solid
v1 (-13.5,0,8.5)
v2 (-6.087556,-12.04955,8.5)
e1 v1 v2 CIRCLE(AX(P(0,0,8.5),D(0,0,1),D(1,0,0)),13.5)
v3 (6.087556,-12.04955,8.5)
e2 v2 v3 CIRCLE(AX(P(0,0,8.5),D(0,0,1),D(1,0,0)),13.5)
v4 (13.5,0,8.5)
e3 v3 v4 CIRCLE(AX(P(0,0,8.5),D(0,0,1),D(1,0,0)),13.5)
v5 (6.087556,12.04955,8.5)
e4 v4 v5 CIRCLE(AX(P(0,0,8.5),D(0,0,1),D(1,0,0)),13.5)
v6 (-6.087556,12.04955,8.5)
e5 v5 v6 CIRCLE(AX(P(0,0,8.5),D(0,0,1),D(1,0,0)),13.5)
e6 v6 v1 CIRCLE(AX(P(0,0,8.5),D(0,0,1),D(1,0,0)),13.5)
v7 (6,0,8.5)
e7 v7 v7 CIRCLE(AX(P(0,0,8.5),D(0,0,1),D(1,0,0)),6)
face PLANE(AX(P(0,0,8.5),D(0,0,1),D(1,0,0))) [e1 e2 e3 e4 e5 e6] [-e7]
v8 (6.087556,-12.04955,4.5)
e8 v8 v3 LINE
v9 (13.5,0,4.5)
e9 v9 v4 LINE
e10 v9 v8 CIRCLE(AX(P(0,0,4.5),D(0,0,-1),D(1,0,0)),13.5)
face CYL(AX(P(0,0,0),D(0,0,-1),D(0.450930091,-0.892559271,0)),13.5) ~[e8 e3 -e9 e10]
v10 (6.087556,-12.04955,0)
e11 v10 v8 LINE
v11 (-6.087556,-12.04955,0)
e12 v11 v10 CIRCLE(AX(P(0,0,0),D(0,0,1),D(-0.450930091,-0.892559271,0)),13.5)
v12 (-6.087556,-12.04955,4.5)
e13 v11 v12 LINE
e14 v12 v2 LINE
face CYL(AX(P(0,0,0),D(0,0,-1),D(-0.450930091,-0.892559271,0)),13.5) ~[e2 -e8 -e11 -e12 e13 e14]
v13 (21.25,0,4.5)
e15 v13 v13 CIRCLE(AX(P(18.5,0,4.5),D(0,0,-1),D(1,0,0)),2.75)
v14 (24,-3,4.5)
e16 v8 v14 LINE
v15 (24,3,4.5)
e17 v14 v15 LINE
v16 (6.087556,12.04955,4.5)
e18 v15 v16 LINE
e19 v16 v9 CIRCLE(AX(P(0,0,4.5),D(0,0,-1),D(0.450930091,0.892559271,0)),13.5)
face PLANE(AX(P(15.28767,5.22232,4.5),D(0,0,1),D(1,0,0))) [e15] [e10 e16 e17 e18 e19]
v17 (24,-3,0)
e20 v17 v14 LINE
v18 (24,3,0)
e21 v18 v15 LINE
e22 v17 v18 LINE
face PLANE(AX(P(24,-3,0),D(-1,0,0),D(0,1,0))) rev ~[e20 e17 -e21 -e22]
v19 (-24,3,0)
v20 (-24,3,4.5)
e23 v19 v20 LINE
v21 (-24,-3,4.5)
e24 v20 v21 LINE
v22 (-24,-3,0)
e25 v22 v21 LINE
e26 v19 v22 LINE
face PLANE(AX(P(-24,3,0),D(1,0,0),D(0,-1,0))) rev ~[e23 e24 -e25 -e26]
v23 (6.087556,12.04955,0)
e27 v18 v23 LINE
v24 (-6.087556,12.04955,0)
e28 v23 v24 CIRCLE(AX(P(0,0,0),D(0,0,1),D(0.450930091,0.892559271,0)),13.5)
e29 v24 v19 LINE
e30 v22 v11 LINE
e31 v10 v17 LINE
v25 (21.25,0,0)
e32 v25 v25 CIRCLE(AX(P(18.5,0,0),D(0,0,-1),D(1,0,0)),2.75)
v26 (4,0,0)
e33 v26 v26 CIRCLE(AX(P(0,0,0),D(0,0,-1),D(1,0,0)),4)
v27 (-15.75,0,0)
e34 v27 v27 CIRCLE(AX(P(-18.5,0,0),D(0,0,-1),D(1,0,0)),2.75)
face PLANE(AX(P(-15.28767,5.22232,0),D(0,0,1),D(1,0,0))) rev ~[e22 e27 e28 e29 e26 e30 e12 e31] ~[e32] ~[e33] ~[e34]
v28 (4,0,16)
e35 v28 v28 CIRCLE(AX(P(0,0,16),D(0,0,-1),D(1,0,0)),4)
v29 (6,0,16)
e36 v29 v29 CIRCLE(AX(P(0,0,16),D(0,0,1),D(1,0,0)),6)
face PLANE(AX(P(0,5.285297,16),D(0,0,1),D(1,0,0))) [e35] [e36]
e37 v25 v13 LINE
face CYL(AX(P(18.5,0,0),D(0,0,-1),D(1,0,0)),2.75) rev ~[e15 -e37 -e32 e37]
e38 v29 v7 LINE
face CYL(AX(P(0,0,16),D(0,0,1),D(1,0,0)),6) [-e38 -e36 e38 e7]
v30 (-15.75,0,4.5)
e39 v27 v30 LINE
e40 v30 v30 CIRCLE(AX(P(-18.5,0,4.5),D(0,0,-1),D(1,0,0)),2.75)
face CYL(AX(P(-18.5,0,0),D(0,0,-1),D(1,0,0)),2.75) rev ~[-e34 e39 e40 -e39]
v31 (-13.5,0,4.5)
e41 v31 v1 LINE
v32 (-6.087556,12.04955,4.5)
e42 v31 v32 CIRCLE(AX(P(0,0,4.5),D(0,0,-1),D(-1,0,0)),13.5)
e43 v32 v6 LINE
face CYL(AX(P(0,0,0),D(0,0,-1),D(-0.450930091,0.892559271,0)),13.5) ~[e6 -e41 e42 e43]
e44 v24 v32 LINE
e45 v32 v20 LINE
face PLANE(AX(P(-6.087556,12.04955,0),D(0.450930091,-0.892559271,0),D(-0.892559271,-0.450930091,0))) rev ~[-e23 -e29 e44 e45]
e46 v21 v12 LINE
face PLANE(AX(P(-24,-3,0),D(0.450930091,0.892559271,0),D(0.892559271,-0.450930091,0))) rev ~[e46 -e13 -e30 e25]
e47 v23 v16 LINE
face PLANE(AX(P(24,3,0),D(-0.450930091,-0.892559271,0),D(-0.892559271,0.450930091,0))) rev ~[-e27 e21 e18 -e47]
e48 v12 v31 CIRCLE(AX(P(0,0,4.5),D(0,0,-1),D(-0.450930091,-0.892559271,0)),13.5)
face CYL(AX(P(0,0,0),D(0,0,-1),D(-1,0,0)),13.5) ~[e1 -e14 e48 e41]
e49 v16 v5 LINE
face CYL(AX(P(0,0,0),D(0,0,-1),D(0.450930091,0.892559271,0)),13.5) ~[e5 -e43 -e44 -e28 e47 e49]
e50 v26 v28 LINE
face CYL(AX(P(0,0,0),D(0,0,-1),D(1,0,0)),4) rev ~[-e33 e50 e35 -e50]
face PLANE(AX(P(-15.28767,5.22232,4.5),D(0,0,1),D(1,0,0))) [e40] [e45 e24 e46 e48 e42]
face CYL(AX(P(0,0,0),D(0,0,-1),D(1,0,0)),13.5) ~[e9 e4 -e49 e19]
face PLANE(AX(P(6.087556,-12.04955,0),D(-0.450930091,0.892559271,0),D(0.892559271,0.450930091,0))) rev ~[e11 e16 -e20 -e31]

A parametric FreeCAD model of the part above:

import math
import FreeCAD as App
import Part
import Sketcher
from FreeCAD import Vector

doc = App.newDocument("Part")
body = doc.addObject("PartDesign::Body", "Body")

# Sketch on XY plane
sketch1 = body.newObject("Sketcher::SketchObject", "Sketch")
sketch1.AttachmentSupport = (doc.getObject("XY_Plane"), [""])
sketch1.MapMode = "FlatFace"
sketch1.addGeometry([
    Part.ArcOfCircle(Part.Circle(Vector(0, 0, 0), Vector(0, 0, 1), 13.5), math.radians(0), math.radians(63)),  # 0
    Part.ArcOfCircle(Part.Circle(Vector(0, 0, 0), Vector(0, 0, 1), 13.5), math.radians(63), math.radians(117)),  # 1
    Part.ArcOfCircle(Part.Circle(Vector(0, 0, 0), Vector(0, 0, 1), 13.5), math.radians(117), math.radians(180)),  # 2
    Part.ArcOfCircle(Part.Circle(Vector(0, 0, 0), Vector(0, 0, 1), 13.5), math.radians(180), math.radians(243)),  # 3
    Part.ArcOfCircle(Part.Circle(Vector(0, 0, 0), Vector(0, 0, 1), 13.5), math.radians(-117), math.radians(-63)),  # 4
    Part.ArcOfCircle(Part.Circle(Vector(0, 0, 0), Vector(0, 0, 1), 13.5), math.radians(-63), math.radians(0)),  # 5
    Part.Circle(Vector(0, 0, 0), Vector(0, 0, 1), 4),  # 6
], False)
sketch1.addConstraint([
    Sketcher.Constraint("Tangent", 0, 2, 1, 1),
    Sketcher.Constraint("Tangent", 1, 2, 2, 1),
    Sketcher.Constraint("Tangent", 2, 2, 3, 1),
    Sketcher.Constraint("Tangent", 3, 2, 4, 1),
    Sketcher.Constraint("Tangent", 4, 2, 5, 1),
    Sketcher.Constraint("Tangent", 5, 2, 0, 1),
    Sketcher.Constraint("Coincident", 0, 3, -1, 1),
    Sketcher.Constraint("Coincident", 2, 3, -1, 1),
    Sketcher.Constraint("Coincident", 6, 3, -1, 1),
    Sketcher.Constraint("Equal", 2, 3),
    Sketcher.Constraint("PointOnObject", 2, 2, -1),
    Sketcher.Constraint("PointOnObject", 5, 2, -1),
    Sketcher.Constraint("Horizontal", 0, 2, 1, 2),
    Sketcher.Constraint("Horizontal", 3, 2, 4, 2),
    Sketcher.Constraint("Vertical", 1, 2, 3, 2),
    Sketcher.Constraint("Diameter", 6, 8.0),
    Sketcher.Constraint("Radius", 0, 13.5),
    Sketcher.Constraint("DistanceY", -1, 1, 0, 2, 12.04955),
])
pad1 = body.newObject("PartDesign::Pad", "Pad")
pad1.Profile = sketch1
pad1.Length = 16

# Sketch on XY plane
sketch2 = body.newObject("Sketcher::SketchObject", "Sketch001")
sketch2.AttachmentSupport = (doc.getObject("XY_Plane"), [""])
sketch2.MapMode = "FlatFace"
sketch2.addGeometry([
    Part.ArcOfCircle(Part.Circle(Vector(0, 0, 0), Vector(0, 0, 1), 13.5), math.radians(117), math.radians(180)),  # 0
    Part.LineSegment(Vector(-6.1, 12, 0), Vector(-24, 3, 0)),  # 1
    Part.LineSegment(Vector(-24, 3, 0), Vector(-24, -3, 0)),  # 2
    Part.LineSegment(Vector(-24, -3, 0), Vector(-6.1, -12, 0)),  # 3
    Part.ArcOfCircle(Part.Circle(Vector(0, 0, 0), Vector(0, 0, 1), 13.5), math.radians(180), math.radians(243)),  # 4
    Part.Circle(Vector(-18.5, 0, 0), Vector(0, 0, 1), 2.8),  # 5
    Part.ArcOfCircle(Part.Circle(Vector(0, 0, 0), Vector(0, 0, 1), 13.5), math.radians(0), math.radians(63)),  # 6
    Part.ArcOfCircle(Part.Circle(Vector(0, 0, 0), Vector(0, 0, 1), 13.5), math.radians(-63), math.radians(0)),  # 7
    Part.LineSegment(Vector(6.1, -12, 0), Vector(24, -3, 0)),  # 8
    Part.LineSegment(Vector(24, -3, 0), Vector(24, 3, 0)),  # 9
    Part.LineSegment(Vector(24, 3, 0), Vector(6.1, 12, 0)),  # 10
    Part.Circle(Vector(18.5, 0, 0), Vector(0, 0, 1), 2.8),  # 11
], False)
sketch2.addConstraint([
    Sketcher.Constraint("Tangent", 0, 1, 1, 1),
    Sketcher.Constraint("Coincident", 1, 2, 2, 1),
    Sketcher.Constraint("Coincident", 2, 2, 3, 1),
    Sketcher.Constraint("Tangent", 3, 2, 4, 2),
    Sketcher.Constraint("Tangent", 4, 1, 0, 2),
    Sketcher.Constraint("Tangent", 6, 1, 7, 2),
    Sketcher.Constraint("Tangent", 7, 1, 8, 1),
    Sketcher.Constraint("Coincident", 8, 2, 9, 1),
    Sketcher.Constraint("Coincident", 9, 2, 10, 1),
    Sketcher.Constraint("Tangent", 10, 2, 6, 2),
    Sketcher.Constraint("Vertical", 2),
    Sketcher.Constraint("Vertical", 9),
    Sketcher.Constraint("Coincident", 0, 3, -1, 1),
    Sketcher.Constraint("Coincident", 6, 3, -1, 1),
    Sketcher.Constraint("Equal", 0, 4),
    Sketcher.Constraint("Equal", 4, 6),
    Sketcher.Constraint("Equal", 6, 7),
    Sketcher.Constraint("Equal", 5, 11),
    Sketcher.Constraint("Symmetric", 5, 3, 11, 3, -1, 1),
    Sketcher.Constraint("Symmetric", 1, 2, 8, 2, -1, 1),
    Sketcher.Constraint("PointOnObject", 5, 3, -1),
    Sketcher.Constraint("PointOnObject", 4, 1, -1),
    Sketcher.Constraint("PointOnObject", 6, 1, -1),
    Sketcher.Constraint("Parallel", 3, 10),
    Sketcher.Constraint("Horizontal", 3, 2, 7, 1),
    Sketcher.Constraint("Diameter", 5, 5.5),
    Sketcher.Constraint("Radius", 0, 13.5),
    Sketcher.Constraint("DistanceY", 2, 2, 2, 1, 6.0),
    Sketcher.Constraint("DistanceX", 1, 2, -1, 1, 24.0),
    Sketcher.Constraint("DistanceX", 5, 3, 11, 3, 37.0),
])
pad2 = body.newObject("PartDesign::Pad", "Pad001")
pad2.Profile = sketch2
pad2.Length = 4.5

# Sketch on XY plane
sketch3 = body.newObject("Sketcher::SketchObject", "Sketch002")
sketch3.AttachmentSupport = (doc.getObject("XY_Plane"), [""])
sketch3.MapMode = "FlatFace"
sketch3.AttachmentOffset = App.Placement(Vector(0, 0, 16), App.Rotation())
sketch3.addGeometry([
    Part.Circle(Vector(0, 0, 0), Vector(0, 0, 1), 14),
    Part.Circle(Vector(0, 0, 0), Vector(0, 0, 1), 6),
], False)
sketch3.addConstraint([
    Sketcher.Constraint("Coincident", 0, 3, -1, 1),
    Sketcher.Constraint("Coincident", 1, 3, -1, 1),
    Sketcher.Constraint("Diameter", 0, 27.0),
    Sketcher.Constraint("Diameter", 1, 12.0),
])
pocket1 = body.newObject("PartDesign::Pocket", "Pocket")
pocket1.Profile = sketch3
pocket1.Length = 7.5

doc.recompute()
